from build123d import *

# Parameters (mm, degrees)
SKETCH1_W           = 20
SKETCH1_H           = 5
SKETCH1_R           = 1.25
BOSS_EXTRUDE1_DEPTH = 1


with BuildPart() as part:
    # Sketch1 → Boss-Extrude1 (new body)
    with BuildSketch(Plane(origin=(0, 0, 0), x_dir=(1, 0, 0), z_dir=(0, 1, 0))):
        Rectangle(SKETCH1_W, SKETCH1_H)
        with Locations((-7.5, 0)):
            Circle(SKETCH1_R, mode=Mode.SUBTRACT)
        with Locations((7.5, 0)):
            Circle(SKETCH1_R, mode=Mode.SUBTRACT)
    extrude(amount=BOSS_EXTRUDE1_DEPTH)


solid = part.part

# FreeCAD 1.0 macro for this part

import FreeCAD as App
import Part
import Sketcher
Q = App.Units.Quantity


def add_polygon(sketch, points):
    """Adds a closed chain of lines whose ends are joined by coincident constraints."""
    first, n = sketch.GeometryCount, len(points)
    for a, b in zip(points, points[1:] + points[:1]):
        sketch.addGeometry(Part.LineSegment(App.Vector(*a, 0), App.Vector(*b, 0)), False)
    for i in range(n):
        sketch.addConstraint(Sketcher.Constraint("Coincident", first + i, 2, first + (i + 1) % n, 1))

doc = App.newDocument("Part")
body = doc.addObject("PartDesign::Body", "Body")

# Sketch on XZ plane
sketch1 = doc.addObject("Sketcher::SketchObject", "Sketch")
body.addObject(sketch1)
sketch1.AttachmentSupport = (doc.XZ_Plane, [""])
sketch1.MapMode = "FlatFace"
add_polygon(sketch1, [(-10, -2.5), (-10, 2.5), (10, 2.5), (10, -2.5)])  # lines 0-3
sketch1.addGeometry(Part.Circle(App.Vector(-7.5, 0, 0), App.Vector(0, 0, 1), 1.25), False)  # 4
sketch1.addGeometry(Part.Circle(App.Vector(7.5, 0, 0), App.Vector(0, 0, 1), 1.25), False)  # 5
sketch1.addConstraint(Sketcher.Constraint("Vertical", 0))
sketch1.addConstraint(Sketcher.Constraint("Horizontal", 1))
sketch1.addConstraint(Sketcher.Constraint("Vertical", 2))
sketch1.addConstraint(Sketcher.Constraint("Horizontal", 3))
sketch1.addConstraint(Sketcher.Constraint("Equal", 4, 5))
sketch1.addConstraint(Sketcher.Constraint("Symmetric", 4, 3, 5, 3, -1, 1))
sketch1.addConstraint(Sketcher.Constraint("Symmetric", 0, 2, 2, 2, -1, 1))
sketch1.addConstraint(Sketcher.Constraint("PointOnObject", 4, 3, -1))
sketch1.addConstraint(Sketcher.Constraint("Diameter", 4, Q("2.5 mm")))
sketch1.addConstraint(Sketcher.Constraint("DistanceX", 1, 1, 1, 2, Q("20 mm")))
sketch1.addConstraint(Sketcher.Constraint("DistanceY", 0, 1, 0, 2, Q("5 mm")))
sketch1.addConstraint(Sketcher.Constraint("DistanceX", 4, 3, 5, 3, Q("15 mm")))
pad1 = doc.addObject("PartDesign::Pad", "Pad")
body.addObject(pad1)
pad1.Profile = sketch1
pad1.Length = 1
pad1.Reversed = True

doc.recompute()
